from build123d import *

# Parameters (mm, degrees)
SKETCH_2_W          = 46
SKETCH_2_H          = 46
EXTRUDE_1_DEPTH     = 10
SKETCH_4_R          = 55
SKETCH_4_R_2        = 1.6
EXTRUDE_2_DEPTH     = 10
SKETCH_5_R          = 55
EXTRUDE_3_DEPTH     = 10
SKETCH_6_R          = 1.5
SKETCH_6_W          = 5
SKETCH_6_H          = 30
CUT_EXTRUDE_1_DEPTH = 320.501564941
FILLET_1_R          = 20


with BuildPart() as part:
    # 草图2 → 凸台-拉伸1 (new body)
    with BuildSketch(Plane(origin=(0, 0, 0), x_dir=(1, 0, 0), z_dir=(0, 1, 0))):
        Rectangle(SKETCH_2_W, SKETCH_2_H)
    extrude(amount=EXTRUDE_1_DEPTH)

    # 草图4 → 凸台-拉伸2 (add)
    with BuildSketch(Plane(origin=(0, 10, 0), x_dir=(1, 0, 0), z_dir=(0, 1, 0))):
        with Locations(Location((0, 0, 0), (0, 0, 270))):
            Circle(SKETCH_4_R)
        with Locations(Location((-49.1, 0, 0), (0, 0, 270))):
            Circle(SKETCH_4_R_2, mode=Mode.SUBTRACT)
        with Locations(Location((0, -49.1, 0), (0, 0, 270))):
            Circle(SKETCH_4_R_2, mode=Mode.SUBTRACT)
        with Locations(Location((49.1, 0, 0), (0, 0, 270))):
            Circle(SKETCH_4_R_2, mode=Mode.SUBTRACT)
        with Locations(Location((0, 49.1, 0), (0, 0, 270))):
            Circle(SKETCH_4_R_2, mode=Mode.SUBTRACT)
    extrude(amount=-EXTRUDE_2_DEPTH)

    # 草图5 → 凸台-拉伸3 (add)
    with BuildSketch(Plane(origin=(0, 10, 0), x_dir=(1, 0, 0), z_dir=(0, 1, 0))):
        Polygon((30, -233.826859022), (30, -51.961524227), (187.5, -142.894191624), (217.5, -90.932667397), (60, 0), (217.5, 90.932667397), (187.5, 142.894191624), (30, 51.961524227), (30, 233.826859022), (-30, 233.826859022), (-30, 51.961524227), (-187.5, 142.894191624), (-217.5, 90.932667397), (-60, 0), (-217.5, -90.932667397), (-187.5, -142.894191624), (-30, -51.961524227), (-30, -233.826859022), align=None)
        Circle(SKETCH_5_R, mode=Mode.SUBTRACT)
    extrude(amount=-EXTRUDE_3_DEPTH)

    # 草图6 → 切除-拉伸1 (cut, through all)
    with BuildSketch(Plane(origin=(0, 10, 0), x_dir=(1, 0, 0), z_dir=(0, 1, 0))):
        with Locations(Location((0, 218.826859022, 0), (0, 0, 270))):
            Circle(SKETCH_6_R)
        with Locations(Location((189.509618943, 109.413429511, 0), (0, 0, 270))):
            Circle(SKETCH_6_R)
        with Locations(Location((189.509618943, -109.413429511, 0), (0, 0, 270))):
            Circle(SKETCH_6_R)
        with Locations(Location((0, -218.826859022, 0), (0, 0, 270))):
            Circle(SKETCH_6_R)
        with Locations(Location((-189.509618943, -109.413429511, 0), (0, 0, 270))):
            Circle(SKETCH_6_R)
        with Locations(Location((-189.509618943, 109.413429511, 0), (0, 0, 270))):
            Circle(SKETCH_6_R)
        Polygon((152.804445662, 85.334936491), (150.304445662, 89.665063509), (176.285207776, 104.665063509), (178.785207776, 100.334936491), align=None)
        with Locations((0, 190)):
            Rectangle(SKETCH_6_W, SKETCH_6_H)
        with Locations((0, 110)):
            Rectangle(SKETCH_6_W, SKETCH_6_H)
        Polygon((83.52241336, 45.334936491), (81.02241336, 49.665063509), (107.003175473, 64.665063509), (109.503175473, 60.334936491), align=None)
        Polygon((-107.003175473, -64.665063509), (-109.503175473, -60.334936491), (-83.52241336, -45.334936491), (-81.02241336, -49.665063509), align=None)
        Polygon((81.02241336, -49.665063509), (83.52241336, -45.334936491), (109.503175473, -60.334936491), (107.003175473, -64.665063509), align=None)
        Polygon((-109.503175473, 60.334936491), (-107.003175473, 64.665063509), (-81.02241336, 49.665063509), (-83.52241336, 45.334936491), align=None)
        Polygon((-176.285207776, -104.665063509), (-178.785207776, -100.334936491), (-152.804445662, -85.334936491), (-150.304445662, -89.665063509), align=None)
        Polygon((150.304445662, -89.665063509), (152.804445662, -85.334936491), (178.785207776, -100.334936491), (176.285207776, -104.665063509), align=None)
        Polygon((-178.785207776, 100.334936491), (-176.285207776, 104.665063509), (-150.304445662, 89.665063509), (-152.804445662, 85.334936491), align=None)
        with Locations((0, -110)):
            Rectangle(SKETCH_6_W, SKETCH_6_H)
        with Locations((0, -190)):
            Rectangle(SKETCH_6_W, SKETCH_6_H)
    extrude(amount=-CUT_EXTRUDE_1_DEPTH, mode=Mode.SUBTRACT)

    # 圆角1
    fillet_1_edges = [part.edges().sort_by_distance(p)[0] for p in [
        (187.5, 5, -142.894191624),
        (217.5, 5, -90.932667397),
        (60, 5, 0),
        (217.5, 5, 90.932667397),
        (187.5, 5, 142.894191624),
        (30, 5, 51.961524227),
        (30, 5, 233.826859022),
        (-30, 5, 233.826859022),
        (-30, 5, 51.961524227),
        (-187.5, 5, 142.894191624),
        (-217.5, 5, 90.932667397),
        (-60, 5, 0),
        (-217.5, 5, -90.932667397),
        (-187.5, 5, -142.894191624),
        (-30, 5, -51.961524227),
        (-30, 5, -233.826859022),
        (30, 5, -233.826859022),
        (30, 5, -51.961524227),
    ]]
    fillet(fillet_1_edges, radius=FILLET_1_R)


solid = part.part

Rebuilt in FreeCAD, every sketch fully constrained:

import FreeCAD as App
import Part
import Sketcher
from FreeCAD import Vector
Q = App.Units.Quantity


def edges_at(feature, points):
    """Names of the edges that pass closest to the given points."""
    edges = feature.Shape.Edges
    near = lambda p: min(range(len(edges)), key=lambda i: edges[i].distToShape(Part.Vertex(*p))[0])
    return sorted({f"Edge{near(p) + 1}" for p in points})

doc = App.newDocument("Part")
body = doc.addObject("PartDesign::Body", "Body")

# Sketch on XZ plane
sketch1 = body.newObject("Sketcher::SketchObject", "Sketch")
sketch1.AttachmentSupport = (doc.getObject("XZ_Plane"), [""])
sketch1.MapMode = "FlatFace"
sketch1.addGeometry(Part.LineSegment(Vector(-23, -23, 0), Vector(-23, 23, 0)), False)
sketch1.addGeometry(Part.LineSegment(Vector(-23, 23, 0), Vector(23, 23, 0)), False)
sketch1.addGeometry(Part.LineSegment(Vector(23, 23, 0), Vector(23, -23, 0)), False)
sketch1.addGeometry(Part.LineSegment(Vector(23, -23, 0), Vector(-23, -23, 0)), False)
sketch1.addConstraint(Sketcher.Constraint("Coincident", 0, 2, 1, 1))
sketch1.addConstraint(Sketcher.Constraint("Coincident", 1, 2, 2, 1))
sketch1.addConstraint(Sketcher.Constraint("Coincident", 2, 2, 3, 1))
sketch1.addConstraint(Sketcher.Constraint("Coincident", 3, 2, 0, 1))
sketch1.addConstraint(Sketcher.Constraint("Vertical", 0))
sketch1.addConstraint(Sketcher.Constraint("Horizontal", 1))
sketch1.addConstraint(Sketcher.Constraint("Vertical", 2))
sketch1.addConstraint(Sketcher.Constraint("Horizontal", 3))
sketch1.addConstraint(Sketcher.Constraint("Symmetric", 0, 2, 2, 2, -1, 1))
sketch1.addConstraint(Sketcher.Constraint("Equal", 3, 0))
sketch1.addConstraint(Sketcher.Constraint("DistanceX", 1, 1, 1, 2, Q("46 mm")))
pad1 = body.newObject("PartDesign::Pad", "Pad")
pad1.Profile = sketch1
pad1.Length = 10
pad1.Reversed = True

# Sketch on XZ plane
sketch2 = body.newObject("Sketcher::SketchObject", "Sketch001")
sketch2.AttachmentSupport = (doc.getObject("XZ_Plane"), [""])
sketch2.MapMode = "FlatFace"
sketch2.AttachmentOffset = App.Placement(Vector(0, 0, -10), App.Rotation())
sketch2.addGeometry(Part.Circle(Vector(0, 0, 0), Vector(0, 0, 1), 55), False)
sketch2.addGeometry(Part.Circle(Vector(0, -49.1, 0), Vector(0, 0, 1), 1.6), False)
sketch2.addGeometry(Part.Circle(Vector(-49.1, 0, 0), Vector(0, 0, 1), 1.6), False)
sketch2.addGeometry(Part.Circle(Vector(49.1, 0, 0), Vector(0, 0, 1), 1.6), False)
sketch2.addGeometry(Part.Circle(Vector(0, 49.1, 0), Vector(0, 0, 1), 1.6), False)
sketch2.addConstraint(Sketcher.Constraint("Coincident", 0, 3, -1, 1))
sketch2.addConstraint(Sketcher.Constraint("Equal", 1, 2))
sketch2.addConstraint(Sketcher.Constraint("Equal", 2, 3))
sketch2.addConstraint(Sketcher.Constraint("Equal", 3, 4))
sketch2.addConstraint(Sketcher.Constraint("Symmetric", 2, 3, 3, 3, -1, 1))
sketch2.addConstraint(Sketcher.Constraint("Symmetric", 1, 3, 4, 3, -1, 1))
sketch2.addConstraint(Sketcher.Constraint("PointOnObject", 1, 3, -2))
sketch2.addConstraint(Sketcher.Constraint("PointOnObject", 2, 3, -1))
sketch2.addConstraint(Sketcher.Constraint("Diameter", 0, Q("110 mm")))
sketch2.addConstraint(Sketcher.Constraint("Diameter", 1, Q("3.2 mm")))
sketch2.addConstraint(Sketcher.Constraint("DistanceY", 1, 3, -1, 1, Q("49.1 mm")))
sketch2.addConstraint(Sketcher.Constraint("DistanceX", 2, 3, -1, 1, Q("49.1 mm")))
pad2 = body.newObject("PartDesign::Pad", "Pad001")
pad2.Profile = sketch2
pad2.Length = 10

# Sketch on XZ plane
sketch3 = body.newObject("Sketcher::SketchObject", "Sketch002")
sketch3.AttachmentSupport = (doc.getObject("XZ_Plane"), [""])
sketch3.MapMode = "FlatFace"
sketch3.AttachmentOffset = App.Placement(Vector(0, 0, -10), App.Rotation())
sketch3.addGeometry(Part.LineSegment(Vector(30, 233.826859, 0), Vector(30, 51.961524, 0)), False)
sketch3.addGeometry(Part.LineSegment(Vector(30, 51.961524, 0), Vector(187.5, 142.894192, 0)), False)
sketch3.addGeometry(Part.LineSegment(Vector(187.5, 142.894192, 0), Vector(217.5, 90.932667, 0)), False)
sketch3.addGeometry(Part.LineSegment(Vector(217.5, 90.932667, 0), Vector(60, 0, 0)), False)
sketch3.addGeometry(Part.LineSegment(Vector(60, 0, 0), Vector(217.5, -90.932667, 0)), False)
sketch3.addGeometry(Part.LineSegment(Vector(217.5, -90.932667, 0), Vector(187.5, -142.894192, 0)), False)
sketch3.addGeometry(Part.LineSegment(Vector(187.5, -142.894192, 0), Vector(30, -51.961524, 0)), False)
sketch3.addGeometry(Part.LineSegment(Vector(30, -51.961524, 0), Vector(30, -233.826859, 0)), False)
sketch3.addGeometry(Part.LineSegment(Vector(30, -233.826859, 0), Vector(-30, -233.826859, 0)), False)
sketch3.addGeometry(Part.LineSegment(Vector(-30, -233.826859, 0), Vector(-30, -51.961524, 0)), False)
sketch3.addGeometry(Part.LineSegment(Vector(-30, -51.961524, 0), Vector(-187.5, -142.894192, 0)), False)
sketch3.addGeometry(Part.LineSegment(Vector(-187.5, -142.894192, 0), Vector(-217.5, -90.932667, 0)), False)
sketch3.addGeometry(Part.LineSegment(Vector(-217.5, -90.932667, 0), Vector(-60, 0, 0)), False)
sketch3.addGeometry(Part.LineSegment(Vector(-60, 0, 0), Vector(-217.5, 90.932667, 0)), False)
sketch3.addGeometry(Part.LineSegment(Vector(-217.5, 90.932667, 0), Vector(-187.5, 142.894192, 0)), False)
sketch3.addGeometry(Part.LineSegment(Vector(-187.5, 142.894192, 0), Vector(-30, 51.961524, 0)), False)
sketch3.addGeometry(Part.LineSegment(Vector(-30, 51.961524, 0), Vector(-30, 233.826859, 0)), False)
sketch3.addGeometry(Part.LineSegment(Vector(-30, 233.826859, 0), Vector(30, 233.826859, 0)), False)
sketch3.addGeometry(Part.Circle(Vector(0, 0, 0), Vector(0, 0, 1), 55), False)
sketch3.addConstraint(Sketcher.Constraint("Coincident", 0, 2, 1, 1))
sketch3.addConstraint(Sketcher.Constraint("Coincident", 1, 2, 2, 1))
sketch3.addConstraint(Sketcher.Constraint("Coincident", 2, 2, 3, 1))
sketch3.addConstraint(Sketcher.Constraint("Coincident", 3, 2, 4, 1))
sketch3.addConstraint(Sketcher.Constraint("Coincident", 4, 2, 5, 1))
sketch3.addConstraint(Sketcher.Constraint("Coincident", 5, 2, 6, 1))
sketch3.addConstraint(Sketcher.Constraint("Coincident", 6, 2, 7, 1))
sketch3.addConstraint(Sketcher.Constraint("Coincident", 7, 2, 8, 1))
sketch3.addConstraint(Sketcher.Constraint("Coincident", 8, 2, 9, 1))
sketch3.addConstraint(Sketcher.Constraint("Coincident", 9, 2, 10, 1))
sketch3.addConstraint(Sketcher.Constraint("Coincident", 10, 2, 11, 1))
sketch3.addConstraint(Sketcher.Constraint("Coincident", 11, 2, 12, 1))
sketch3.addConstraint(Sketcher.Constraint("Coincident", 12, 2, 13, 1))
sketch3.addConstraint(Sketcher.Constraint("Coincident", 13, 2, 14, 1))
sketch3.addConstraint(Sketcher.Constraint("Coincident", 14, 2, 15, 1))
sketch3.addConstraint(Sketcher.Constraint("Coincident", 15, 2, 16, 1))
sketch3.addConstraint(Sketcher.Constraint("Coincident", 16, 2, 17, 1))
sketch3.addConstraint(Sketcher.Constraint("Coincident", 17, 2, 0, 1))
sketch3.addConstraint(Sketcher.Constraint("Vertical", 0))
sketch3.addConstraint(Sketcher.Constraint("Vertical", 7))
sketch3.addConstraint(Sketcher.Constraint("Horizontal", 8))
sketch3.addConstraint(Sketcher.Constraint("Vertical", 9))
sketch3.addConstraint(Sketcher.Constraint("Vertical", 16))
sketch3.addConstraint(Sketcher.Constraint("Horizontal", 17))
sketch3.addConstraint(Sketcher.Constraint("Coincident", 18, 3, -1, 1))
sketch3.addConstraint(Sketcher.Constraint("Symmetric", 0, 2, 9, 2, -1, 1))
sketch3.addConstraint(Sketcher.Constraint("Symmetric", 1, 2, 10, 2, -1, 1))
sketch3.addConstraint(Sketcher.Constraint("Symmetric", 2, 2, 11, 2, -1, 1))
sketch3.addConstraint(Sketcher.Constraint("Symmetric", 3, 2, 12, 2, -1, 1))
sketch3.addConstraint(Sketcher.Constraint("Symmetric", 4, 2, 13, 2, -1, 1))
sketch3.addConstraint(Sketcher.Constraint("Symmetric", 5, 2, 14, 2, -1, 1))
sketch3.addConstraint(Sketcher.Constraint("Symmetric", 6, 2, 15, 2, -1, 1))
sketch3.addConstraint(Sketcher.Constraint("Symmetric", 6, 2, 9, 2, -2))
sketch3.addConstraint(Sketcher.Constraint("Symmetric", 5, 2, 10, 2, -2))
sketch3.addConstraint(Sketcher.Constraint("Symmetric", 4, 2, 11, 2, -2))
sketch3.addConstraint(Sketcher.Constraint("PointOnObject", 3, 2, -1))
sketch3.addConstraint(Sketcher.Constraint("Perpendicular", 1, 2))
sketch3.addConstraint(Sketcher.Constraint("Perpendicular", 2, 3))
sketch3.addConstraint(Sketcher.Constraint("Equal", 0, 7))
sketch3.addConstraint(Sketcher.Constraint("Equal", 1, 3))
sketch3.addConstraint(Sketcher.Constraint("Diameter", 18, Q("110 mm")))
sketch3.addConstraint(Sketcher.Constraint("DistanceX", 8, 2, 8, 1, Q("60 mm")))
sketch3.addConstraint(Sketcher.Constraint("Angle", 1, Q("30 deg")))
sketch3.addConstraint(Sketcher.Constraint("Distance", 2, Q("60 mm")))
sketch3.addConstraint(Sketcher.Constraint("DistanceX", -1, 1, 1, 2, Q("187.5 mm")))
sketch3.addConstraint(Sketcher.Constraint("DistanceY", 0, 2, 0, 1, Q("181.865335 mm")))
pad3 = body.newObject("PartDesign::Pad", "Pad002")
pad3.Profile = sketch3
pad3.Length = 10

# Sketch on XZ plane
sketch4 = body.newObject("Sketcher::SketchObject", "Sketch003")
sketch4.AttachmentSupport = (doc.getObject("XZ_Plane"), [""])
sketch4.MapMode = "FlatFace"
sketch4.AttachmentOffset = App.Placement(Vector(0, 0, -10), App.Rotation())
sketch4.addGeometry(Part.Circle(Vector(0, -218.826859, 0), Vector(0, 0, 1), 1.5), False)
sketch4.addGeometry(Part.Circle(Vector(189.509619, -109.41343, 0), Vector(0, 0, 1), 1.5), False)
sketch4.addGeometry(Part.Circle(Vector(189.509619, 109.41343, 0), Vector(0, 0, 1), 1.5), False)
sketch4.addGeometry(Part.Circle(Vector(0, 218.826859, 0), Vector(0, 0, 1), 1.5), False)
sketch4.addGeometry(Part.Circle(Vector(-189.509619, 109.41343, 0), Vector(0, 0, 1), 1.5), False)
sketch4.addGeometry(Part.Circle(Vector(-189.509619, -109.41343, 0), Vector(0, 0, 1), 1.5), False)
sketch4.addGeometry(Part.LineSegment(Vector(150.304446, -89.665064, 0), Vector(152.804446, -85.334936, 0)), False)
sketch4.addGeometry(Part.LineSegment(Vector(152.804446, -85.334936, 0), Vector(178.785208, -100.334936, 0)), False)
sketch4.addGeometry(Part.LineSegment(Vector(178.785208, -100.334936, 0), Vector(176.285208, -104.665064, 0)), False)
sketch4.addGeometry(Part.LineSegment(Vector(176.285208, -104.665064, 0), Vector(150.304446, -89.665064, 0)), False)
sketch4.addGeometry(Part.LineSegment(Vector(-2.5, -205, 0), Vector(-2.5, -175, 0)), False)
sketch4.addGeometry(Part.LineSegment(Vector(-2.5, -175, 0), Vector(2.5, -175, 0)), False)
sketch4.addGeometry(Part.LineSegment(Vector(2.5, -175, 0), Vector(2.5, -205, 0)), False)
sketch4.addGeometry(Part.LineSegment(Vector(2.5, -205, 0), Vector(-2.5, -205, 0)), False)
sketch4.addGeometry(Part.LineSegment(Vector(-2.5, -125, 0), Vector(-2.5, -95, 0)), False)
sketch4.addGeometry(Part.LineSegment(Vector(-2.5, -95, 0), Vector(2.5, -95, 0)), False)
sketch4.addGeometry(Part.LineSegment(Vector(2.5, -95, 0), Vector(2.5, -125, 0)), False)
sketch4.addGeometry(Part.LineSegment(Vector(2.5, -125, 0), Vector(-2.5, -125, 0)), False)
sketch4.addGeometry(Part.LineSegment(Vector(81.022413, -49.665064, 0), Vector(83.522413, -45.334936, 0)), False)
sketch4.addGeometry(Part.LineSegment(Vector(83.522413, -45.334936, 0), Vector(109.503175, -60.334936, 0)), False)
sketch4.addGeometry(Part.LineSegment(Vector(109.503175, -60.334936, 0), Vector(107.003175, -64.665064, 0)), False)
sketch4.addGeometry(Part.LineSegment(Vector(107.003175, -64.665064, 0), Vector(81.022413, -49.665064, 0)), False)
sketch4.addGeometry(Part.LineSegment(Vector(-109.503175, 60.334936, 0), Vector(-107.003175, 64.665064, 0)), False)
sketch4.addGeometry(Part.LineSegment(Vector(-107.003175, 64.665064, 0), Vector(-81.022413, 49.665064, 0)), False)
sketch4.addGeometry(Part.LineSegment(Vector(-81.022413, 49.665064, 0), Vector(-83.522413, 45.334936, 0)), False)
sketch4.addGeometry(Part.LineSegment(Vector(-83.522413, 45.334936, 0), Vector(-109.503175, 60.334936, 0)), False)
sketch4.addGeometry(Part.LineSegment(Vector(83.522413, 45.334936, 0), Vector(81.022413, 49.665064, 0)), False)
sketch4.addGeometry(Part.LineSegment(Vector(81.022413, 49.665064, 0), Vector(107.003175, 64.665064, 0)), False)
sketch4.addGeometry(Part.LineSegment(Vector(107.003175, 64.665064, 0), Vector(109.503175, 60.334936, 0)), False)
sketch4.addGeometry(Part.LineSegment(Vector(109.503175, 60.334936, 0), Vector(83.522413, 45.334936, 0)), False)
sketch4.addGeometry(Part.LineSegment(Vector(-107.003175, -64.665064, 0), Vector(-109.503175, -60.334936, 0)), False)
sketch4.addGeometry(Part.LineSegment(Vector(-109.503175, -60.334936, 0), Vector(-83.522413, -45.334936, 0)), False)
sketch4.addGeometry(Part.LineSegment(Vector(-83.522413, -45.334936, 0), Vector(-81.022413, -49.665064, 0)), False)
sketch4.addGeometry(Part.LineSegment(Vector(-81.022413, -49.665064, 0), Vector(-107.003175, -64.665064, 0)), False)
sketch4.addGeometry(Part.LineSegment(Vector(-178.785208, 100.334936, 0), Vector(-176.285208, 104.665064, 0)), False)
sketch4.addGeometry(Part.LineSegment(Vector(-176.285208, 104.665064, 0), Vector(-150.304446, 89.665064, 0)), False)
sketch4.addGeometry(Part.LineSegment(Vector(-150.304446, 89.665064, 0), Vector(-152.804446, 85.334936, 0)), False)
sketch4.addGeometry(Part.LineSegment(Vector(-152.804446, 85.334936, 0), Vector(-178.785208, 100.334936, 0)), False)
sketch4.addGeometry(Part.LineSegment(Vector(152.804446, 85.334936, 0), Vector(150.304446, 89.665064, 0)), False)
sketch4.addGeometry(Part.LineSegment(Vector(150.304446, 89.665064, 0), Vector(176.285208, 104.665064, 0)), False)
sketch4.addGeometry(Part.LineSegment(Vector(176.285208, 104.665064, 0), Vector(178.785208, 100.334936, 0)), False)
sketch4.addGeometry(Part.LineSegment(Vector(178.785208, 100.334936, 0), Vector(152.804446, 85.334936, 0)), False)
sketch4.addGeometry(Part.LineSegment(Vector(-176.285208, -104.665064, 0), Vector(-178.785208, -100.334936, 0)), False)
sketch4.addGeometry(Part.LineSegment(Vector(-178.785208, -100.334936, 0), Vector(-152.804446, -85.334936, 0)), False)
sketch4.addGeometry(Part.LineSegment(Vector(-152.804446, -85.334936, 0), Vector(-150.304446, -89.665064, 0)), False)
sketch4.addGeometry(Part.LineSegment(Vector(-150.304446, -89.665064, 0), Vector(-176.285208, -104.665064, 0)), False)
sketch4.addGeometry(Part.LineSegment(Vector(-2.5, 95, 0), Vector(-2.5, 125, 0)), False)
sketch4.addGeometry(Part.LineSegment(Vector(-2.5, 125, 0), Vector(2.5, 125, 0)), False)
sketch4.addGeometry(Part.LineSegment(Vector(2.5, 125, 0), Vector(2.5, 95, 0)), False)
sketch4.addGeometry(Part.LineSegment(Vector(2.5, 95, 0), Vector(-2.5, 95, 0)), False)
sketch4.addGeometry(Part.LineSegment(Vector(-2.5, 175, 0), Vector(-2.5, 205, 0)), False)
sketch4.addGeometry(Part.LineSegment(Vector(-2.5, 205, 0), Vector(2.5, 205, 0)), False)
sketch4.addGeometry(Part.LineSegment(Vector(2.5, 205, 0), Vector(2.5, 175, 0)), False)
sketch4.addGeometry(Part.LineSegment(Vector(2.5, 175, 0), Vector(-2.5, 175, 0)), False)
sketch4.addConstraint(Sketcher.Constraint("Coincident", 6, 2, 7, 1))
sketch4.addConstraint(Sketcher.Constraint("Coincident", 7, 2, 8, 1))
sketch4.addConstraint(Sketcher.Constraint("Coincident", 8, 2, 9, 1))
sketch4.addConstraint(Sketcher.Constraint("Coincident", 9, 2, 6, 1))
sketch4.addConstraint(Sketcher.Constraint("Coincident", 10, 2, 11, 1))
sketch4.addConstraint(Sketcher.Constraint("Coincident", 11, 2, 12, 1))
sketch4.addConstraint(Sketcher.Constraint("Coincident", 12, 2, 13, 1))
sketch4.addConstraint(Sketcher.Constraint("Coincident", 13, 2, 10, 1))
sketch4.addConstraint(Sketcher.Constraint("Coincident", 14, 2, 15, 1))
sketch4.addConstraint(Sketcher.Constraint("Coincident", 15, 2, 16, 1))
sketch4.addConstraint(Sketcher.Constraint("Coincident", 16, 2, 17, 1))
sketch4.addConstraint(Sketcher.Constraint("Coincident", 17, 2, 14, 1))
sketch4.addConstraint(Sketcher.Constraint("Coincident", 18, 2, 19, 1))
sketch4.addConstraint(Sketcher.Constraint("Coincident", 19, 2, 20, 1))
sketch4.addConstraint(Sketcher.Constraint("Coincident", 20, 2, 21, 1))
sketch4.addConstraint(Sketcher.Constraint("Coincident", 21, 2, 18, 1))
sketch4.addConstraint(Sketcher.Constraint("Coincident", 22, 2, 23, 1))
sketch4.addConstraint(Sketcher.Constraint("Coincident", 23, 2, 24, 1))
sketch4.addConstraint(Sketcher.Constraint("Coincident", 24, 2, 25, 1))
sketch4.addConstraint(Sketcher.Constraint("Coincident", 25, 2, 22, 1))
sketch4.addConstraint(Sketcher.Constraint("Coincident", 26, 2, 27, 1))
sketch4.addConstraint(Sketcher.Constraint("Coincident", 27, 2, 28, 1))
sketch4.addConstraint(Sketcher.Constraint("Coincident", 28, 2, 29, 1))
sketch4.addConstraint(Sketcher.Constraint("Coincident", 29, 2, 26, 1))
sketch4.addConstraint(Sketcher.Constraint("Coincident", 30, 2, 31, 1))
sketch4.addConstraint(Sketcher.Constraint("Coincident", 31, 2, 32, 1))
sketch4.addConstraint(Sketcher.Constraint("Coincident", 32, 2, 33, 1))
sketch4.addConstraint(Sketcher.Constraint("Coincident", 33, 2, 30, 1))
sketch4.addConstraint(Sketcher.Constraint("Coincident", 34, 2, 35, 1))
sketch4.addConstraint(Sketcher.Constraint("Coincident", 35, 2, 36, 1))
sketch4.addConstraint(Sketcher.Constraint("Coincident", 36, 2, 37, 1))
sketch4.addConstraint(Sketcher.Constraint("Coincident", 37, 2, 34, 1))
sketch4.addConstraint(Sketcher.Constraint("Coincident", 38, 2, 39, 1))
sketch4.addConstraint(Sketcher.Constraint("Coincident", 39, 2, 40, 1))
sketch4.addConstraint(Sketcher.Constraint("Coincident", 40, 2, 41, 1))
sketch4.addConstraint(Sketcher.Constraint("Coincident", 41, 2, 38, 1))
sketch4.addConstraint(Sketcher.Constraint("Coincident", 42, 2, 43, 1))
sketch4.addConstraint(Sketcher.Constraint("Coincident", 43, 2, 44, 1))
sketch4.addConstraint(Sketcher.Constraint("Coincident", 44, 2, 45, 1))
sketch4.addConstraint(Sketcher.Constraint("Coincident", 45, 2, 42, 1))
sketch4.addConstraint(Sketcher.Constraint("Coincident", 46, 2, 47, 1))
sketch4.addConstraint(Sketcher.Constraint("Coincident", 47, 2, 48, 1))
sketch4.addConstraint(Sketcher.Constraint("Coincident", 48, 2, 49, 1))
sketch4.addConstraint(Sketcher.Constraint("Coincident", 49, 2, 46, 1))
sketch4.addConstraint(Sketcher.Constraint("Coincident", 50, 2, 51, 1))
sketch4.addConstraint(Sketcher.Constraint("Coincident", 51, 2, 52, 1))
sketch4.addConstraint(Sketcher.Constraint("Coincident", 52, 2, 53, 1))
sketch4.addConstraint(Sketcher.Constraint("Coincident", 53, 2, 50, 1))
sketch4.addConstraint(Sketcher.Constraint("Vertical", 10))
sketch4.addConstraint(Sketcher.Constraint("Horizontal", 11))
sketch4.addConstraint(Sketcher.Constraint("Vertical", 12))
sketch4.addConstraint(Sketcher.Constraint("Horizontal", 13))
sketch4.addConstraint(Sketcher.Constraint("Vertical", 14))
sketch4.addConstraint(Sketcher.Constraint("Horizontal", 15))
sketch4.addConstraint(Sketcher.Constraint("Vertical", 16))
sketch4.addConstraint(Sketcher.Constraint("Horizontal", 17))
sketch4.addConstraint(Sketcher.Constraint("Vertical", 46))
sketch4.addConstraint(Sketcher.Constraint("Horizontal", 47))
sketch4.addConstraint(Sketcher.Constraint("Vertical", 48))
sketch4.addConstraint(Sketcher.Constraint("Horizontal", 49))
sketch4.addConstraint(Sketcher.Constraint("Vertical", 50))
sketch4.addConstraint(Sketcher.Constraint("Horizontal", 51))
sketch4.addConstraint(Sketcher.Constraint("Vertical", 52))
sketch4.addConstraint(Sketcher.Constraint("Horizontal", 53))
sketch4.addConstraint(Sketcher.Constraint("Equal", 0, 1))
sketch4.addConstraint(Sketcher.Constraint("Equal", 1, 2))
sketch4.addConstraint(Sketcher.Constraint("Equal", 2, 3))
sketch4.addConstraint(Sketcher.Constraint("Equal", 3, 4))
sketch4.addConstraint(Sketcher.Constraint("Equal", 4, 5))
sketch4.addConstraint(Sketcher.Constraint("Symmetric", 0, 3, 3, 3, -1, 1))
sketch4.addConstraint(Sketcher.Constraint("Symmetric", 1, 3, 4, 3, -1, 1))
sketch4.addConstraint(Sketcher.Constraint("Symmetric", 2, 3, 5, 3, -1, 1))
sketch4.addConstraint(Sketcher.Constraint("Symmetric", 20, 2, 22, 2, -1, 1))
sketch4.addConstraint(Sketcher.Constraint("Symmetric", 21, 2, 23, 2, -1, 1))
sketch4.addConstraint(Sketcher.Constraint("Symmetric", 18, 2, 24, 2, -1, 1))
sketch4.addConstraint(Sketcher.Constraint("Symmetric", 19, 2, 25, 2, -1, 1))
sketch4.addConstraint(Sketcher.Constraint("Symmetric", 28, 2, 30, 2, -1, 1))
sketch4.addConstraint(Sketcher.Constraint("Symmetric", 29, 2, 31, 2, -1, 1))
sketch4.addConstraint(Sketcher.Constraint("Symmetric", 26, 2, 32, 2, -1, 1))
sketch4.addConstraint(Sketcher.Constraint("Symmetric", 27, 2, 33, 2, -1, 1))
sketch4.addConstraint(Sketcher.Constraint("Symmetric", 8, 2, 34, 2, -1, 1))
sketch4.addConstraint(Sketcher.Constraint("Symmetric", 9, 2, 35, 2, -1, 1))
sketch4.addConstraint(Sketcher.Constraint("Symmetric", 6, 2, 36, 2, -1, 1))
sketch4.addConstraint(Sketcher.Constraint("Symmetric", 7, 2, 37, 2, -1, 1))
sketch4.addConstraint(Sketcher.Constraint("Symmetric", 40, 2, 42, 2, -1, 1))
sketch4.addConstraint(Sketcher.Constraint("Symmetric", 41, 2, 43, 2, -1, 1))
sketch4.addConstraint(Sketcher.Constraint("Symmetric", 38, 2, 44, 2, -1, 1))
sketch4.addConstraint(Sketcher.Constraint("Symmetric", 39, 2, 45, 2, -1, 1))
sketch4.addConstraint(Sketcher.Constraint("Symmetric", 16, 2, 46, 2, -1, 1))
sketch4.addConstraint(Sketcher.Constraint("Symmetric", 14, 2, 48, 2, -1, 1))
sketch4.addConstraint(Sketcher.Constraint("Symmetric", 12, 2, 50, 2, -1, 1))
sketch4.addConstraint(Sketcher.Constraint("Symmetric", 10, 2, 52, 2, -1, 1))
sketch4.addConstraint(Sketcher.Constraint("Symmetric", 2, 3, 4, 3, -2))
sketch4.addConstraint(Sketcher.Constraint("Symmetric", 23, 2, 26, 2, -2))
sketch4.addConstraint(Sketcher.Constraint("Symmetric", 22, 2, 27, 2, -2))
sketch4.addConstraint(Sketcher.Constraint("Symmetric", 25, 2, 28, 2, -2))
sketch4.addConstraint(Sketcher.Constraint("Symmetric", 24, 2, 29, 2, -2))
sketch4.addConstraint(Sketcher.Constraint("Symmetric", 35, 2, 38, 2, -2))
sketch4.addConstraint(Sketcher.Constraint("Symmetric", 34, 2, 39, 2, -2))
sketch4.addConstraint(Sketcher.Constraint("Symmetric", 37, 2, 40, 2, -2))
sketch4.addConstraint(Sketcher.Constraint("Symmetric", 36, 2, 41, 2, -2))
sketch4.addConstraint(Sketcher.Constraint("PointOnObject", 0, 3, -2))
sketch4.addConstraint(Sketcher.Constraint("Perpendicular", 6, 7))
sketch4.addConstraint(Sketcher.Constraint("Perpendicular", 7, 8))
sketch4.addConstraint(Sketcher.Constraint("Perpendicular", 8, 9))
sketch4.addConstraint(Sketcher.Constraint("Perpendicular", 9, 18))
sketch4.addConstraint(Sketcher.Constraint("Perpendicular", 18, 19))
sketch4.addConstraint(Sketcher.Constraint("Perpendicular", 19, 20))
sketch4.addConstraint(Sketcher.Constraint("Perpendicular", 20, 21))
sketch4.addConstraint(Sketcher.Constraint("Vertical", 13, 2, 14, 2))
sketch4.addConstraint(Sketcher.Constraint("Vertical", 12, 2, 15, 2))
sketch4.addConstraint(Sketcher.Constraint("Vertical", 17, 2, 46, 2))
sketch4.addConstraint(Sketcher.Constraint("Equal", 12, 14))
sketch4.addConstraint(Sketcher.Constraint("Equal", 8, 18))
sketch4.addConstraint(Sketcher.Constraint("Equal", 9, 19))
sketch4.addConstraint(Sketcher.Constraint("Diameter", 0, Q("3 mm")))
sketch4.addConstraint(Sketcher.Constraint("DistanceX", 11, 1, 11, 2, Q("5 mm")))
sketch4.addConstraint(Sketcher.Constraint("DistanceY", 10, 1, 10, 2, Q("30 mm")))
sketch4.addConstraint(Sketcher.Constraint("Angle", 6, Q("60 deg")))
sketch4.addConstraint(Sketcher.Constraint("Distance", 6, Q("5 mm")))
sketch4.addConstraint(Sketcher.Constraint("Distance", 7, Q("30 mm")))
sketch4.addConstraint(Sketcher.Constraint("DistanceY", 10, 2, -1, 1, Q("175 mm")))
sketch4.addConstraint(Sketcher.Constraint("DistanceY", 14, 2, -1, 1, Q("95 mm")))
sketch4.addConstraint(Sketcher.Constraint("DistanceY", 6, 2, 18, 2, Q("40 mm")))
sketch4.addConstraint(Sketcher.Constraint("DistanceY", 18, 2, 26, 2, Q("95 mm")))
sketch4.addConstraint(Sketcher.Constraint("DistanceY", 0, 3, -1, 1, Q("218.826859 mm")))
sketch4.addConstraint(Sketcher.Constraint("DistanceX", -1, 1, 1, 3, Q("189.509619 mm")))
sketch4.addConstraint(Sketcher.Constraint("DistanceY", 1, 3, -1, 1, Q("109.41343 mm")))
sketch4.addConstraint(Sketcher.Constraint("DistanceX", 7, 2, 1, 3, Q("10.724411 mm")))
sketch4.addConstraint(Sketcher.Constraint("DistanceX", 19, 2, 6, 2, Q("43.30127 mm")))
pocket1 = body.newObject("PartDesign::Pocket", "Pocket")
pocket1.Profile = sketch4
pocket1.Type = "ThroughAll"
pocket1.Reversed = True
doc.recompute()

fillet = body.newObject("PartDesign::Fillet", "Fillet")
fillet.Base = (pocket1, edges_at(pocket1, [
    (187.5, 5, -142.894),
    (217.5, 5, -90.933),
    (60, 5, 0),
    (217.5, 5, 90.933),
    (187.5, 5, 142.894),
    (30, 5, 51.962),
    (30, 5, 233.827),
    (-30, 5, 233.827),
    (-30, 5, 51.962),
    (-187.5, 5, 142.894),
    (-217.5, 5, 90.933),
    (-60, 5, 0),
    (-217.5, 5, -90.933),
    (-187.5, 5, -142.894),
    (-30, 5, -51.962),
    (-30, 5, -233.827),
    (30, 5, -233.827),
    (30, 5, -51.962),
]))
fillet.Radius = 20

doc.recompute()
